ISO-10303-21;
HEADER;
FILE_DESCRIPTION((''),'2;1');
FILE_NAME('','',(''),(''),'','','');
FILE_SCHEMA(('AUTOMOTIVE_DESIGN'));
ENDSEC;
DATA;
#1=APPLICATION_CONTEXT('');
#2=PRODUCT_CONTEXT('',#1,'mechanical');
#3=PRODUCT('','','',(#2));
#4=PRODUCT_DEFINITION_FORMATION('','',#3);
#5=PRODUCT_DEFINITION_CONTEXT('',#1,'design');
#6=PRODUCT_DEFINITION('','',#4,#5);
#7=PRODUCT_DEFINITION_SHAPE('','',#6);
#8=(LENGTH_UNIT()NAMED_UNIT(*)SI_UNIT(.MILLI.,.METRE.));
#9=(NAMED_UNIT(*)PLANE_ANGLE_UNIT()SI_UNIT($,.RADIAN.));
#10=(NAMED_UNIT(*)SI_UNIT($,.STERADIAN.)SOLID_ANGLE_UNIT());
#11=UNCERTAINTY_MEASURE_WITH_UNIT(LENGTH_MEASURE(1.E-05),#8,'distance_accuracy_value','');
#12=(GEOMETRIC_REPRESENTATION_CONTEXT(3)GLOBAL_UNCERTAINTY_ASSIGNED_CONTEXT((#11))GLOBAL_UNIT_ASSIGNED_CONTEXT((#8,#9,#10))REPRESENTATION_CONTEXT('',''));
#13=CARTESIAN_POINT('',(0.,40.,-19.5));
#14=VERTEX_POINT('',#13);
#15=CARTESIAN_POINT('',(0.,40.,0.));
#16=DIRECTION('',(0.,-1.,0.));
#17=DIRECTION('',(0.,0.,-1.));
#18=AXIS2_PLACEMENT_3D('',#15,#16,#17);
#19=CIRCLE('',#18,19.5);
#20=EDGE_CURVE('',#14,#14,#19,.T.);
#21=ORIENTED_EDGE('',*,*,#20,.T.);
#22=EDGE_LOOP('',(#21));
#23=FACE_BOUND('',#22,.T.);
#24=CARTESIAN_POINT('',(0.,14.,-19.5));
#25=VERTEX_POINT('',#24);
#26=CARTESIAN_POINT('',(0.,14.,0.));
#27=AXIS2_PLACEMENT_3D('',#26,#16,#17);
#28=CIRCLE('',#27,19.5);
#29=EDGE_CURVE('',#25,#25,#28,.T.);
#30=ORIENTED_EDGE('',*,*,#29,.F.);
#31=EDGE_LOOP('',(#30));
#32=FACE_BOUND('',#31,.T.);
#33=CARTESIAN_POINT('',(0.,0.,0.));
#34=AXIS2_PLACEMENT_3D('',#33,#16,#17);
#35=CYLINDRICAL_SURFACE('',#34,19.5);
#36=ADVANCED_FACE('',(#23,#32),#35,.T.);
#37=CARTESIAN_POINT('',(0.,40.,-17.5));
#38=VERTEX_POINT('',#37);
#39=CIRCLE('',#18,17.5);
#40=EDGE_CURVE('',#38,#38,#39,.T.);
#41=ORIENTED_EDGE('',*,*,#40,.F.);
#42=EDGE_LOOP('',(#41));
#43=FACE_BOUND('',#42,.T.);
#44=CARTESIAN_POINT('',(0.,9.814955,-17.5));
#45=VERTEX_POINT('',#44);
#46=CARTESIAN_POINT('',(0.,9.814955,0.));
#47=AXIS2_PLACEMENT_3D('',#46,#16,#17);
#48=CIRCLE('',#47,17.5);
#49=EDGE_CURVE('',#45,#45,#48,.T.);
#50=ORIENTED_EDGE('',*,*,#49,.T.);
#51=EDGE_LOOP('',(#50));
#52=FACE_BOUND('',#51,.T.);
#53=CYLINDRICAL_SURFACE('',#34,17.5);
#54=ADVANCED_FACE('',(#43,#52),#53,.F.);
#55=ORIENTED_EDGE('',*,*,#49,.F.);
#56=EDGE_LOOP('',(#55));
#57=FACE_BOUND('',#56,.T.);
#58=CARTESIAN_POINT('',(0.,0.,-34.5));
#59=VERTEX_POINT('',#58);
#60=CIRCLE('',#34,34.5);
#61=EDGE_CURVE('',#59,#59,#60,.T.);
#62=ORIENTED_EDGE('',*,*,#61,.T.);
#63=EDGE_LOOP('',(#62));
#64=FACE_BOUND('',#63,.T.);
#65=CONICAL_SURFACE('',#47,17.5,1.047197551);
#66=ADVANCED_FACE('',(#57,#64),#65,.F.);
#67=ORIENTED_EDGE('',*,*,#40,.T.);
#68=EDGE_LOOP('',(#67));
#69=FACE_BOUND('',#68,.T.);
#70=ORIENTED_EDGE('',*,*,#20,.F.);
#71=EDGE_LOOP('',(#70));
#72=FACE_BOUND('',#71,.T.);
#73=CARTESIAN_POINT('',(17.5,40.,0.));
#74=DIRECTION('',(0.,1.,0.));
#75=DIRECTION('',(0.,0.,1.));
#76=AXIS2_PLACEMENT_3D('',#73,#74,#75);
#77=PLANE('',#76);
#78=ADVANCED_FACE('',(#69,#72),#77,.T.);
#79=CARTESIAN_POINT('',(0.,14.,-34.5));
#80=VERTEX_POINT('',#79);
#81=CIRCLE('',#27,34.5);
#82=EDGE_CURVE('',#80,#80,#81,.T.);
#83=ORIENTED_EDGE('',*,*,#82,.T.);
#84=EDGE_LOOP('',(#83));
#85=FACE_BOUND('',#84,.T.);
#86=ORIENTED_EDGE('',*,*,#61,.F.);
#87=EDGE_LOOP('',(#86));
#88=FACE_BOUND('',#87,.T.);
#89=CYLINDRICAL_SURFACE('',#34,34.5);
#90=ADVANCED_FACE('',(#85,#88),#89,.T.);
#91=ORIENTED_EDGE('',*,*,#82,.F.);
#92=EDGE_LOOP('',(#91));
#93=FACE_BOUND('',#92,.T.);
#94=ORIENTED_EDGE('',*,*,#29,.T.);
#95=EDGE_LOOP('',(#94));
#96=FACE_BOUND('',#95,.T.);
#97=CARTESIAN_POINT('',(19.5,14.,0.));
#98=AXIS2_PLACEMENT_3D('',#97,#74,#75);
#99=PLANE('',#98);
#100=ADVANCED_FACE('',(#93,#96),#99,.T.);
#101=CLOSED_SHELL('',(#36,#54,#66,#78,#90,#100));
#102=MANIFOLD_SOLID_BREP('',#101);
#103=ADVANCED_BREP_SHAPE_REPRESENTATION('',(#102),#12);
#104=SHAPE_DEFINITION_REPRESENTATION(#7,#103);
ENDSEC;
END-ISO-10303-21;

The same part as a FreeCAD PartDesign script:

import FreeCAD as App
import Part
import Sketcher

V = App.Vector
Q = App.Units.Quantity


def add_polygon(sketch, points):
    """Adds a closed chain of lines whose ends are joined by coincident constraints."""
    first, n = sketch.GeometryCount, len(points)
    for a, b in zip(points, points[1:] + points[:1]):
        sketch.addGeometry(Part.LineSegment(App.Vector(*a, 0), App.Vector(*b, 0)), False)
    for i in range(n):
        sketch.addConstraint(Sketcher.Constraint("Coincident", first + i, 2, first + (i + 1) % n, 1))

doc = App.newDocument("Part")
params = doc.addObject("Spreadsheet::Sheet", "Params")
for row, (alias, value) in enumerate([
    ("sketch1_width", "15 mm"),
    ("sketch1_width2", "2 mm"),
    ("sketch1_height", "14 mm"),
    ("sketch1_height2", "26 mm"),
    ("revolution_angle", "360 deg"),
], start=1):
    params.set(f"A{row}", alias)
    params.set(f"B{row}", "=" + value)
    params.setAlias(f"B{row}", alias)

body = doc.addObject("PartDesign::Body", "Body")

# Sketch on XY plane
sketch1 = body.newObject("Sketcher::SketchObject", "Sketch")
sketch1.AttachmentSupport = (doc.getObject("XY_Plane"), [""])
sketch1.MapMode = "FlatFace"
add_polygon(sketch1, [(17.5, 40), (17.5, 9.814955), (34.5, 0), (34.5, 14), (19.5, 14), (19.5, 40)])  # lines 0-5
sketch1.addConstraint(Sketcher.Constraint("Vertical", 0))
sketch1.addConstraint(Sketcher.Constraint("Vertical", 2))
sketch1.addConstraint(Sketcher.Constraint("Horizontal", 3))
sketch1.addConstraint(Sketcher.Constraint("Vertical", 4))
sketch1.addConstraint(Sketcher.Constraint("Horizontal", 5))
sketch1.addConstraint(Sketcher.Constraint("PointOnObject", 1, 2, -1))
sketch1.addConstraint(Sketcher.Constraint("DistanceX", 3, 2, 3, 1, Q("15 mm")))
sketch1.addConstraint(Sketcher.Constraint("DistanceX", 5, 2, 5, 1, Q("2 mm")))
sketch1.addConstraint(Sketcher.Constraint("DistanceY", 2, 1, 2, 2, Q("14 mm")))
sketch1.addConstraint(Sketcher.Constraint("DistanceY", 4, 1, 4, 2, Q("26 mm")))
sketch1.addConstraint(Sketcher.Constraint("Angle", 1, Q("-30 deg")))
sketch1.addConstraint(Sketcher.Constraint("DistanceX", -1, 1, 0, 2, Q("17.5 mm")))
sketch1.setExpression("Constraints[12]", "Params.sketch1_width")
sketch1.setExpression("Constraints[13]", "Params.sketch1_width2")
sketch1.setExpression("Constraints[14]", "Params.sketch1_height")
sketch1.setExpression("Constraints[15]", "Params.sketch1_height2")
revolution = body.newObject("PartDesign::Revolution", "Revolution")
revolution.Profile = sketch1
revolution.ReferenceAxis = (sketch1, ["V_Axis"])
revolution.setExpression("Angle", "Params.revolution_angle")

doc.recompute()
